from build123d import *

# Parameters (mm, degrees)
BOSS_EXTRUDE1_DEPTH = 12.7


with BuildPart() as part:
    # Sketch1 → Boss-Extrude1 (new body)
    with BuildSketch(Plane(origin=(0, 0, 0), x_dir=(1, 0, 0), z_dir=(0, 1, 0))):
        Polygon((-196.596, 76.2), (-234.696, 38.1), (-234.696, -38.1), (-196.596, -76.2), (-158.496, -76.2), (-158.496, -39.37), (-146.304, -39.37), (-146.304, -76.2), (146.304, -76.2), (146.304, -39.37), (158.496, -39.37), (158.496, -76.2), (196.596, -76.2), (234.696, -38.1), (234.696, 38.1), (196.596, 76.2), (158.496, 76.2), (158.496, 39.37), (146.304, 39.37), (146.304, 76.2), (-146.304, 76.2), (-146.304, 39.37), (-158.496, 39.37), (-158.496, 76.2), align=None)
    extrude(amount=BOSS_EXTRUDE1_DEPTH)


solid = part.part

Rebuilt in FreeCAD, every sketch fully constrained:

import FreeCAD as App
import Part
import Sketcher
Q = App.Units.Quantity


def add_polygon(sketch, points):
    """Adds a closed chain of lines whose ends are joined by coincident constraints."""
    first, n = sketch.GeometryCount, len(points)
    for a, b in zip(points, points[1:] + points[:1]):
        sketch.addGeometry(Part.LineSegment(App.Vector(*a, 0), App.Vector(*b, 0)), False)
    for i in range(n):
        sketch.addConstraint(Sketcher.Constraint("Coincident", first + i, 2, first + (i + 1) % n, 1))

doc = App.newDocument("Part")
body = doc.addObject("PartDesign::Body", "Body")

sketch1 = body.newObject("Sketcher::SketchObject", "Sketch")
sketch1.AttachmentSupport = (doc.getObject("XZ_Plane"), [""])
sketch1.MapMode = "FlatFace"
add_polygon(sketch1, [(-197, -76), (-235, -38), (-235, 38), (-197, 76), (-158, 76), (-158, 39), (-146, 39), (-146, 76), (146, 76), (146, 39), (158, 39), (158, 76), (197, 76), (235, 38), (235, -38), (197, -76), (158, -76), (158, -39), (146, -39), (146, -76), (-146, -76), (-146, -39), (-158, -39), (-158, -76)])
sketch1.addConstraint([
    Sketcher.Constraint("Vertical", 1),
    Sketcher.Constraint("Horizontal", 3),
    Sketcher.Constraint("Vertical", 4),
    Sketcher.Constraint("Horizontal", 5),
    Sketcher.Constraint("Vertical", 6),
    Sketcher.Constraint("Horizontal", 7),
    Sketcher.Constraint("Vertical", 8),
    Sketcher.Constraint("Horizontal", 9),
    Sketcher.Constraint("Vertical", 10),
    Sketcher.Constraint("Horizontal", 11),
    Sketcher.Constraint("Vertical", 13),
    Sketcher.Constraint("Horizontal", 15),
    Sketcher.Constraint("Vertical", 16),
    Sketcher.Constraint("Horizontal", 17),
    Sketcher.Constraint("Vertical", 18),
    Sketcher.Constraint("Horizontal", 19),
    Sketcher.Constraint("Vertical", 20),
    Sketcher.Constraint("Horizontal", 21),
    Sketcher.Constraint("Vertical", 22),
    Sketcher.Constraint("Horizontal", 23),
    Sketcher.Constraint("Symmetric", 0, 2, 12, 2, -1, 1),
    Sketcher.Constraint("Symmetric", 2, 2, 14, 2, -1, 1),
    Sketcher.Constraint("Symmetric", 4, 2, 16, 2, -1, 1),
    Sketcher.Constraint("Symmetric", 6, 2, 18, 2, -1, 1),
    Sketcher.Constraint("Symmetric", 8, 2, 20, 2, -1, 1),
    Sketcher.Constraint("Symmetric", 10, 2, 22, 2, -1, 1),
    Sketcher.Constraint("Symmetric", 5, 2, 8, 2, -2),
    Sketcher.Constraint("Symmetric", 3, 2, 10, 2, -2),
    Sketcher.Constraint("Perpendicular", 0, 2),
    Sketcher.Constraint("Perpendicular", 2, 12),
    Sketcher.Constraint("Perpendicular", 12, 14),
    Sketcher.Constraint("Horizontal", 3, 2, 6, 2),
    Sketcher.Constraint("Horizontal", 1, 2, 12, 2),
    Sketcher.Constraint("Vertical", 11, 2, 14, 2),
    Sketcher.Constraint("DistanceY", 1, 1, 1, 2, Q("3 in")),
    Sketcher.Constraint("DistanceX", 3, 1, 3, 2, Q("1.5 in")),
    Sketcher.Constraint("DistanceY", -1, 1, 2, 2, Q("3 in")),
    Sketcher.Constraint("DistanceX", 3, 2, 7, 2, Q("12 in")),
    Sketcher.Constraint("DistanceX", 5, 1, 5, 2, Q("0.48 in")),
    Sketcher.Constraint("DistanceY", 4, 2, 4, 1, Q("1.45 in")),
])
pad1 = body.newObject("PartDesign::Pad", "Pad")
pad1.Profile = sketch1
pad1.Length = Q("0.5 in")
pad1.Reversed = True

doc.recompute()
